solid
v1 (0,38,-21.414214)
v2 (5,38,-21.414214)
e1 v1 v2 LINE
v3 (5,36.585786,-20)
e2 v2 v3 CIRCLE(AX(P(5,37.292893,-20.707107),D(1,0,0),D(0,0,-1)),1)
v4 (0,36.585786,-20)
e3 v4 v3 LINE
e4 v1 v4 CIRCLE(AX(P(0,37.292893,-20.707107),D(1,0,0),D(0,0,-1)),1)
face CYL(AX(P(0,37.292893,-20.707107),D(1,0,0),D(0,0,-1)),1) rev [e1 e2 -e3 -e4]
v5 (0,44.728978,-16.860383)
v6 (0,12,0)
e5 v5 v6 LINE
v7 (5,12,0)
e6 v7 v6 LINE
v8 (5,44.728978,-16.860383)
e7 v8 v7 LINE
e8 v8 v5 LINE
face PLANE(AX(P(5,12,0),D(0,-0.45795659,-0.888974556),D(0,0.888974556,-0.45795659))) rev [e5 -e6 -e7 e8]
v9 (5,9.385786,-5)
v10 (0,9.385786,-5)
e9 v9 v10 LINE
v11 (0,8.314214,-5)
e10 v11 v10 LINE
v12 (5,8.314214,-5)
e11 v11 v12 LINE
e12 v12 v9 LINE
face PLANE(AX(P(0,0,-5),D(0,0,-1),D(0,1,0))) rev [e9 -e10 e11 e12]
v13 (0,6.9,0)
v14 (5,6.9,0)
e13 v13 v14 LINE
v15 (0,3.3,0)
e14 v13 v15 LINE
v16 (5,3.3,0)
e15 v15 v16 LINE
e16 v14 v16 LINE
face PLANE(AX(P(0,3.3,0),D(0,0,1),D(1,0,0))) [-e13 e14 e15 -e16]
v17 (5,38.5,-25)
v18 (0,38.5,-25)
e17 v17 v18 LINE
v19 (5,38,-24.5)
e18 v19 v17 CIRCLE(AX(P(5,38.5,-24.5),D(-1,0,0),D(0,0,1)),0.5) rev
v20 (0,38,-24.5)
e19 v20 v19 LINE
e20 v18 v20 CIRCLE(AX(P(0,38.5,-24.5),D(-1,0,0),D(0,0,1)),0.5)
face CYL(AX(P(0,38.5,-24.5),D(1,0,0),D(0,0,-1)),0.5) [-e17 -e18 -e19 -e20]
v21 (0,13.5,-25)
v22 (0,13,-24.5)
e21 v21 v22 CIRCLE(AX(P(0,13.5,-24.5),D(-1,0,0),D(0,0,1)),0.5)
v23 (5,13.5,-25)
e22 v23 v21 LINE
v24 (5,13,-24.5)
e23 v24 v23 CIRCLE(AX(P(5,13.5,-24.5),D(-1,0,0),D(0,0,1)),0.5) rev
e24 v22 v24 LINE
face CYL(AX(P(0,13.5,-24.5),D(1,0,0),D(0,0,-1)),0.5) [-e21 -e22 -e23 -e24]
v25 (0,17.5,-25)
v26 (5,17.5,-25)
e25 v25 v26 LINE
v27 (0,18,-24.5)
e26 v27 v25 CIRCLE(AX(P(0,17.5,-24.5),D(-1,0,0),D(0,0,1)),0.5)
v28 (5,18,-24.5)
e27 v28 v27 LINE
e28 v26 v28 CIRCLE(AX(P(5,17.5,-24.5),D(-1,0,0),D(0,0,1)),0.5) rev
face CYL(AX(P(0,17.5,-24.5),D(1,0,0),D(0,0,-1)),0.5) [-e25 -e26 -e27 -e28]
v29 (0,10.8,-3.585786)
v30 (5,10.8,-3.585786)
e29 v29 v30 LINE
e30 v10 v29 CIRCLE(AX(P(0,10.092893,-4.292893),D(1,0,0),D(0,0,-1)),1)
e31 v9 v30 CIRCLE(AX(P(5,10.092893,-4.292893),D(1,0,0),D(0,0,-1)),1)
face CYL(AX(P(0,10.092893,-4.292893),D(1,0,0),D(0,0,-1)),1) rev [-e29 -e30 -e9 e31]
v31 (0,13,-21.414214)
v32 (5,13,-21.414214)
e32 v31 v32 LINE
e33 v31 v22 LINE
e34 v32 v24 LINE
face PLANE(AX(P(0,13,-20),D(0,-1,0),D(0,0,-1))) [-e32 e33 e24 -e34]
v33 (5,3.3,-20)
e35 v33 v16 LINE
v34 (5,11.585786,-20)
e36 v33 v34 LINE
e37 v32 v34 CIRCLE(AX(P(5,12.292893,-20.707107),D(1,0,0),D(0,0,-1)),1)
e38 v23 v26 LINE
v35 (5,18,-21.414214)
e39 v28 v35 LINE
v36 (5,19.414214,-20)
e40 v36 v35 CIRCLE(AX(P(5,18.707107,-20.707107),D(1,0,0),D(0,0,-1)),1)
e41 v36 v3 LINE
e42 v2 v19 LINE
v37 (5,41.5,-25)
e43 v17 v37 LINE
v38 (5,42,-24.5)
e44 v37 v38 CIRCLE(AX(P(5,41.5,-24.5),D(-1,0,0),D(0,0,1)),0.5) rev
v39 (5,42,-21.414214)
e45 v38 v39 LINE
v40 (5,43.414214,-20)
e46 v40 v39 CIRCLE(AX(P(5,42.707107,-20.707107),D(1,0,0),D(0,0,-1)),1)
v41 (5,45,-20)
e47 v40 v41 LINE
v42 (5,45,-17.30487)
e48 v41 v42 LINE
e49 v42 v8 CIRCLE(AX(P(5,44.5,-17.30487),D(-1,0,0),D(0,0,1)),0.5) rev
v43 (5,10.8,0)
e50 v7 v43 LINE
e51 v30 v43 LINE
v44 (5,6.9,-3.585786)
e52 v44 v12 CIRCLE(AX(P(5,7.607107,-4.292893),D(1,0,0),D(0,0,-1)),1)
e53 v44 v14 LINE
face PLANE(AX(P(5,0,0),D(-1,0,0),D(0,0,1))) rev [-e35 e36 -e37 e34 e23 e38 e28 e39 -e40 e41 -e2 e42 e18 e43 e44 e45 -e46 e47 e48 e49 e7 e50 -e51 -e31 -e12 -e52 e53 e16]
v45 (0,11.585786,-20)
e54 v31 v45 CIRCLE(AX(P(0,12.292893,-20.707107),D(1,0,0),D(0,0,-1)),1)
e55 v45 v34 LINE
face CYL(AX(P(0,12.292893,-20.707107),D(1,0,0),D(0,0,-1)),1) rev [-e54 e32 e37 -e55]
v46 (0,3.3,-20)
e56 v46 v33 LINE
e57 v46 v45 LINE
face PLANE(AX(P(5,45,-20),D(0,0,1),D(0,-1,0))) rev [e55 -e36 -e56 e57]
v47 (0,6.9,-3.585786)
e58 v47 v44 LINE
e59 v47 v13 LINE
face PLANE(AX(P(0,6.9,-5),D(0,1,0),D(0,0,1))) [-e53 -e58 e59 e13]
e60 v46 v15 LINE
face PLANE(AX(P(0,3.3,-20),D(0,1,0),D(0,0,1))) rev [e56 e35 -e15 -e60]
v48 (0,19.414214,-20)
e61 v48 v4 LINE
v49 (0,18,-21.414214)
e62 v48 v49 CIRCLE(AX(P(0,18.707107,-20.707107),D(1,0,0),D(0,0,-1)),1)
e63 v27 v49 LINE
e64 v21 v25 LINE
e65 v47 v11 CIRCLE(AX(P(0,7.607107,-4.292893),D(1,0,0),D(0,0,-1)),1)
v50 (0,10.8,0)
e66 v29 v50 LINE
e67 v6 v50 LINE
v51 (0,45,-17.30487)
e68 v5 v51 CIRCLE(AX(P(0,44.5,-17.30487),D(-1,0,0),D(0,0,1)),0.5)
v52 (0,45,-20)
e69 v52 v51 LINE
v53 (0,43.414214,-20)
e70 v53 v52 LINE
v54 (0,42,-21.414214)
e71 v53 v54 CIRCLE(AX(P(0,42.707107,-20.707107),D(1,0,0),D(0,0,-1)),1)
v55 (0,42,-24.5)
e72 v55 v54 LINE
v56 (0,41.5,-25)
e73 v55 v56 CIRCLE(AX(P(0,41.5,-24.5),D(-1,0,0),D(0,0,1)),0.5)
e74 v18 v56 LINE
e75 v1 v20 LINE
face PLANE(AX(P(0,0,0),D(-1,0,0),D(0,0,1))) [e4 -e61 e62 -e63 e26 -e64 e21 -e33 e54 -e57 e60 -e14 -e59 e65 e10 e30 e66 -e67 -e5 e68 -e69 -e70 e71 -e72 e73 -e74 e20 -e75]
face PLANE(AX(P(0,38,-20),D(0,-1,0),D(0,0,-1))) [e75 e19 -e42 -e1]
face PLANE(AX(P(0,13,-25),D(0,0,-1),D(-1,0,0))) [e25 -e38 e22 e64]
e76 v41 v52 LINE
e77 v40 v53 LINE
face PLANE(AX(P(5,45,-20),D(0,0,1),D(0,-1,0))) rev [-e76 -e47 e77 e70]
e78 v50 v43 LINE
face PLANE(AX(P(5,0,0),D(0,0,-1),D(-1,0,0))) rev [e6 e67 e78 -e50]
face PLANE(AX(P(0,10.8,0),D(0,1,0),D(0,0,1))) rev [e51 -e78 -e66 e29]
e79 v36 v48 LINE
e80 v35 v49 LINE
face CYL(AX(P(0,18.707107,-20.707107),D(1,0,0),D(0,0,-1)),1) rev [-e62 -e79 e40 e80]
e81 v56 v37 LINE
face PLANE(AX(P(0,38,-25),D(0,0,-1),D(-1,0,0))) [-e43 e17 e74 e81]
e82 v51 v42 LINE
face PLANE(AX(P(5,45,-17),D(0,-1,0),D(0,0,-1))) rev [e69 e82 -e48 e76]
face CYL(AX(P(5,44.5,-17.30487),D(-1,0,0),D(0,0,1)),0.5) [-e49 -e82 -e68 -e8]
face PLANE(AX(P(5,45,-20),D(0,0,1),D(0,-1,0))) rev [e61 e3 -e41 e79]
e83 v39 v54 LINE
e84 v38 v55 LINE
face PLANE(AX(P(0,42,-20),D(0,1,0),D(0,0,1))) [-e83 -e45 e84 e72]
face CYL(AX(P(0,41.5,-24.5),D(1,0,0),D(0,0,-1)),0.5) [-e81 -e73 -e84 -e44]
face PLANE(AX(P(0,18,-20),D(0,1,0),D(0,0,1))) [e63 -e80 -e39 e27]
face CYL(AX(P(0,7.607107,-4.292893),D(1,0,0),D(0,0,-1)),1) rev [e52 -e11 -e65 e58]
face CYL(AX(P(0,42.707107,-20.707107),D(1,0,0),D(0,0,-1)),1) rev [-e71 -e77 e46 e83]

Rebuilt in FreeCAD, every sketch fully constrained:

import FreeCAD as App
import Part
import Sketcher
Q = App.Units.Quantity


def edges_at(feature, points):
    """Names of the edges that pass closest to the given points."""
    edges = feature.Shape.Edges
    near = lambda p: min(range(len(edges)), key=lambda i: edges[i].distToShape(Part.Vertex(*p))[0])
    return sorted({f"Edge{near(p) + 1}" for p in points})


def add_polygon(sketch, points):
    """Adds a closed chain of lines whose ends are joined by coincident constraints."""
    first, n = sketch.GeometryCount, len(points)
    for a, b in zip(points, points[1:] + points[:1]):
        sketch.addGeometry(Part.LineSegment(App.Vector(*a, 0), App.Vector(*b, 0)), False)
    for i in range(n):
        sketch.addConstraint(Sketcher.Constraint("Coincident", first + i, 2, first + (i + 1) % n, 1))

doc = App.newDocument("Part")
body = doc.addObject("PartDesign::Body", "Body")

sketch1 = doc.addObject("Sketcher::SketchObject", "Sketch")
body.addObject(sketch1)
sketch1.AttachmentSupport = (doc.YZ_Plane, [""])
sketch1.MapMode = "FlatFace"
add_polygon(sketch1, [(12, 0), (0, 0), (0, -20), (45, -20), (45, -17)])
sketch1.addConstraint([
    Sketcher.Constraint("Horizontal", 0),
    Sketcher.Constraint("Vertical", 1),
    Sketcher.Constraint("Horizontal", 2),
    Sketcher.Constraint("Vertical", 3),
    Sketcher.Constraint("Coincident", 0, 2, -1, 1),
    Sketcher.Constraint("DistanceX", 0, 2, 0, 1, Q("12 mm")),
    Sketcher.Constraint("DistanceX", 2, 1, 2, 2, Q("45 mm")),
    Sketcher.Constraint("DistanceY", 1, 2, 1, 1, Q("20 mm")),
    Sketcher.Constraint("DistanceY", 3, 1, 3, 2, Q("3 mm")),
])
pad1 = doc.addObject("PartDesign::Pad", "Pad")
body.addObject(pad1)
pad1.Profile = sketch1
pad1.Length = 5

sketch2 = doc.addObject("Sketcher::SketchObject", "Sketch001")
body.addObject(sketch2)
sketch2.AttachmentSupport = (doc.YZ_Plane, [""])
sketch2.MapMode = "FlatFace"
sketch2.AttachmentOffset = App.Placement(App.Vector(0, 0, 5), App.Rotation())
add_polygon(sketch2, [(10.8, 0), (0, 0), (0, -5), (10.8, -5)])
sketch2.addConstraint([
    Sketcher.Constraint("Horizontal", 0),
    Sketcher.Constraint("Vertical", 1),
    Sketcher.Constraint("Horizontal", 2),
    Sketcher.Constraint("Vertical", 3),
    Sketcher.Constraint("Coincident", 0, 2, -1, 1),
    Sketcher.Constraint("DistanceY", 1, 2, 1, 1, Q("5 mm")),
    Sketcher.Constraint("DistanceX", 0, 2, 0, 1, Q("10.8 mm")),
])
pocket1 = doc.addObject("PartDesign::Pocket", "Pocket")
body.addObject(pocket1)
pocket1.Profile = sketch2
pocket1.Length = 5

sketch3 = doc.addObject("Sketcher::SketchObject", "Sketch002")
body.addObject(sketch3)
sketch3.AttachmentSupport = (doc.YZ_Plane, [""])
sketch3.MapMode = "FlatFace"
sketch3.AttachmentOffset = App.Placement(App.Vector(0, 0, 5), App.Rotation())
add_polygon(sketch3, [(3.3, -5), (0, -5), (0, -20), (3.3, -20)])
sketch3.addConstraint([
    Sketcher.Constraint("Horizontal", 0),
    Sketcher.Constraint("Vertical", 1),
    Sketcher.Constraint("Horizontal", 2),
    Sketcher.Constraint("Vertical", 3),
    Sketcher.Constraint("PointOnObject", 0, 2, -2),
    Sketcher.Constraint("DistanceY", 1, 2, 1, 1, Q("15 mm")),
    Sketcher.Constraint("DistanceX", 0, 2, 0, 1, Q("3.3 mm")),
    Sketcher.Constraint("DistanceY", 0, 2, -1, 1, Q("5 mm")),
])
pocket2 = doc.addObject("PartDesign::Pocket", "Pocket001")
body.addObject(pocket2)
pocket2.Profile = sketch3
pocket2.Length = 5

sketch4 = doc.addObject("Sketcher::SketchObject", "Sketch003")
body.addObject(sketch4)
sketch4.AttachmentSupport = (doc.YZ_Plane, [""])
sketch4.MapMode = "FlatFace"
sketch4.AttachmentOffset = App.Placement(App.Vector(0, 0, 5), App.Rotation())
add_polygon(sketch4, [(6.9, 0), (3.3, 0), (3.3, -5), (6.9, -5)])
sketch4.addConstraint([
    Sketcher.Constraint("Horizontal", 0),
    Sketcher.Constraint("Vertical", 1),
    Sketcher.Constraint("Horizontal", 2),
    Sketcher.Constraint("Vertical", 3),
    Sketcher.Constraint("PointOnObject", 0, 2, -1),
    Sketcher.Constraint("DistanceY", 1, 2, 1, 1, Q("5 mm")),
    Sketcher.Constraint("DistanceX", 0, 2, 0, 1, Q("3.6 mm")),
    Sketcher.Constraint("DistanceX", -1, 1, 0, 2, Q("3.3 mm")),
])
pad2 = doc.addObject("PartDesign::Pad", "Pad001")
body.addObject(pad2)
pad2.Profile = sketch4
pad2.Length = 5
pad2.Reversed = True

sketch5 = doc.addObject("Sketcher::SketchObject", "Sketch004")
body.addObject(sketch5)
sketch5.AttachmentSupport = (doc.YZ_Plane, [""])
sketch5.MapMode = "FlatFace"
sketch5.AttachmentOffset = App.Placement(App.Vector(0, 0, 5), App.Rotation())
sketch5.addGeometry([
    Part.Circle(App.Vector(10.092893, -4.292893, 0), App.Vector(0, 0, 1), 1),
    Part.Circle(App.Vector(7.607107, -4.292893, 0), App.Vector(0, 0, 1), 1),
], False)
sketch5.addConstraint([
    Sketcher.Constraint("Equal", 0, 1),
    Sketcher.Constraint("Horizontal", 0, 3, 1, 3),
    Sketcher.Constraint("Diameter", 0, Q("2 mm")),
    Sketcher.Constraint("DistanceX", -1, 1, 0, 3, Q("10.092893 mm")),
    Sketcher.Constraint("DistanceY", 0, 3, -1, 1, Q("4.292893 mm")),
    Sketcher.Constraint("DistanceX", -1, 1, 1, 3, Q("7.607107 mm")),
])
pocket3 = doc.addObject("PartDesign::Pocket", "Pocket002")
body.addObject(pocket3)
pocket3.Profile = sketch5
pocket3.Length = 5

sketch6 = doc.addObject("Sketcher::SketchObject", "Sketch005")
body.addObject(sketch6)
sketch6.AttachmentSupport = (doc.YZ_Plane, [""])
sketch6.MapMode = "FlatFace"
sketch6.AttachmentOffset = App.Placement(App.Vector(0, 0, 5), App.Rotation())
add_polygon(sketch6, [(42, -20), (38, -20), (38, -25), (42, -25)])
add_polygon(sketch6, [(18, -20), (13, -20), (13, -25), (18, -25)])
sketch6.addConstraint([
    Sketcher.Constraint("Horizontal", 0),
    Sketcher.Constraint("Vertical", 1),
    Sketcher.Constraint("Horizontal", 2),
    Sketcher.Constraint("Vertical", 3),
    Sketcher.Constraint("Horizontal", 4),
    Sketcher.Constraint("Vertical", 5),
    Sketcher.Constraint("Horizontal", 6),
    Sketcher.Constraint("Vertical", 7),
    Sketcher.Constraint("Horizontal", 3, 2, 4, 2),
    Sketcher.Constraint("Horizontal", 2, 2, 5, 2),
    Sketcher.Constraint("Equal", 6, 1),
    Sketcher.Constraint("DistanceX", 0, 2, 0, 1, Q("4 mm")),
    Sketcher.Constraint("DistanceX", 4, 2, 4, 1, Q("5 mm")),
    Sketcher.Constraint("DistanceX", -1, 1, 0, 2, Q("38 mm")),
    Sketcher.Constraint("DistanceY", 0, 2, -1, 1, Q("20 mm")),
    Sketcher.Constraint("DistanceX", -1, 1, 4, 2, Q("13 mm")),
])
pad3 = doc.addObject("PartDesign::Pad", "Pad002")
body.addObject(pad3)
pad3.Profile = sketch6
pad3.Length = 5
pad3.Reversed = True

sketch7 = doc.addObject("Sketcher::SketchObject", "Sketch006")
body.addObject(sketch7)
sketch7.AttachmentSupport = (doc.YZ_Plane, [""])
sketch7.MapMode = "FlatFace"
sketch7.AttachmentOffset = App.Placement(App.Vector(0, 0, 5), App.Rotation())
add_polygon(sketch7, [(18, -20), (13, -20), (13, -25), (18, -25)])
add_polygon(sketch7, [(42, -20), (38, -20), (38, -25), (42, -25)])
sketch7.addConstraint([
    Sketcher.Constraint("Horizontal", 0),
    Sketcher.Constraint("Vertical", 1),
    Sketcher.Constraint("Horizontal", 2),
    Sketcher.Constraint("Vertical", 3),
    Sketcher.Constraint("Horizontal", 4),
    Sketcher.Constraint("Vertical", 5),
    Sketcher.Constraint("Horizontal", 6),
    Sketcher.Constraint("Vertical", 7),
    Sketcher.Constraint("Horizontal", 3, 2, 4, 2),
    Sketcher.Constraint("Horizontal", 2, 2, 5, 2),
    Sketcher.Constraint("Equal", 2, 1),
    Sketcher.Constraint("DistanceX", 0, 2, 0, 1, Q("5 mm")),
    Sketcher.Constraint("DistanceX", 4, 2, 4, 1, Q("4 mm")),
    Sketcher.Constraint("DistanceX", -1, 1, 0, 2, Q("13 mm")),
    Sketcher.Constraint("DistanceY", 0, 2, -1, 1, Q("20 mm")),
    Sketcher.Constraint("DistanceX", -1, 1, 4, 2, Q("38 mm")),
])
pad4 = doc.addObject("PartDesign::Pad", "Pad003")
body.addObject(pad4)
pad4.Profile = sketch7
pad4.Length = 5
pad4.Reversed = True

sketch8 = doc.addObject("Sketcher::SketchObject", "Sketch007")
body.addObject(sketch8)
sketch8.AttachmentSupport = (doc.YZ_Plane, [""])
sketch8.MapMode = "FlatFace"
sketch8.AttachmentOffset = App.Placement(App.Vector(0, 0, 5), App.Rotation())
sketch8.addGeometry([
    Part.Circle(App.Vector(18.707107, -20.707107, 0), App.Vector(0, 0, 1), 1),
    Part.Circle(App.Vector(12.292893, -20.707107, 0), App.Vector(0, 0, 1), 1),
    Part.Circle(App.Vector(37.292893, -20.707107, 0), App.Vector(0, 0, 1), 1),
    Part.Circle(App.Vector(42.707107, -20.707107, 0), App.Vector(0, 0, 1), 1),
], False)
sketch8.addConstraint([
    Sketcher.Constraint("Equal", 0, 1),
    Sketcher.Constraint("Equal", 1, 2),
    Sketcher.Constraint("Equal", 2, 3),
    Sketcher.Constraint("Horizontal", 0, 3, 1, 3),
    Sketcher.Constraint("Horizontal", 1, 3, 2, 3),
    Sketcher.Constraint("Horizontal", 2, 3, 3, 3),
    Sketcher.Constraint("Diameter", 0, Q("2 mm")),
    Sketcher.Constraint("DistanceX", 1, 3, 2, 3, Q("25 mm")),
    Sketcher.Constraint("DistanceX", 0, 3, 3, 3, Q("24 mm")),
    Sketcher.Constraint("DistanceX", -1, 1, 0, 3, Q("18.707107 mm")),
    Sketcher.Constraint("DistanceY", 0, 3, -1, 1, Q("20.707107 mm")),
    Sketcher.Constraint("DistanceX", -1, 1, 1, 3, Q("12.292893 mm")),
])
pocket4 = doc.addObject("PartDesign::Pocket", "Pocket003")
body.addObject(pocket4)
pocket4.Profile = sketch8
pocket4.Length = 5
doc.recompute()

fillet = doc.addObject("PartDesign::Fillet", "Fillet")
body.addObject(fillet)
fillet.Base = (pocket4, edges_at(pocket4, [
    (2.5, 13, -25),
    (2.5, 38, -25),
    (2.5, 18, -25),
    (2.5, 42, -25),
    (2.5, 45, -17),
]))
fillet.Radius = 0.5

doc.recompute()
